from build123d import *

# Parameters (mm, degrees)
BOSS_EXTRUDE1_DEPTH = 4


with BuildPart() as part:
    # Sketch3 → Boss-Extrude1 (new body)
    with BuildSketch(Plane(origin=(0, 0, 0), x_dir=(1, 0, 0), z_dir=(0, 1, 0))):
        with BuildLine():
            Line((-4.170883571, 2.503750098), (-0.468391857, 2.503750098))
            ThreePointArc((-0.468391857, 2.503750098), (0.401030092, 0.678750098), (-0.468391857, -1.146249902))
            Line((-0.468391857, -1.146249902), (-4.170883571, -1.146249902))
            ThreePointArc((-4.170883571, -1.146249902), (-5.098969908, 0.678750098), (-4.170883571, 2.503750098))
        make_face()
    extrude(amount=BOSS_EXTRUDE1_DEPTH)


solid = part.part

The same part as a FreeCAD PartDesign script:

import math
import FreeCAD as App
import Part
import Sketcher

doc = App.newDocument("Part")
body = doc.addObject("PartDesign::Body", "Body")

# Sketch on XZ plane
sketch1 = body.newObject("Sketcher::SketchObject", "Sketch")
sketch1.AttachmentSupport = (doc.getObject("XZ_Plane"), [""])
sketch1.MapMode = "FlatFace"
sketch1.addGeometry(Part.LineSegment(App.Vector(-0.5, -2.5, 0), App.Vector(-4.2, -2.5, 0)), False)
sketch1.addGeometry(Part.ArcOfCircle(Part.Circle(App.Vector(-2.8, -0.7, 0), App.Vector(0, 0, 1), 2.3), math.radians(126), math.radians(234)), False)
sketch1.addGeometry(Part.LineSegment(App.Vector(-4.2, 1.1, 0), App.Vector(-0.5, 1.1, 0)), False)
sketch1.addGeometry(Part.ArcOfCircle(Part.Circle(App.Vector(-1.9, -0.7, 0), App.Vector(0, 0, 1), 2.4), math.radians(-51), math.radians(51)), False)
sketch1.addConstraint(Sketcher.Constraint("Coincident", 0, 2, 1, 2))
sketch1.addConstraint(Sketcher.Constraint("Coincident", 1, 1, 2, 1))
sketch1.addConstraint(Sketcher.Constraint("Coincident", 2, 2, 3, 2))
sketch1.addConstraint(Sketcher.Constraint("Coincident", 3, 1, 0, 1))
sketch1.addConstraint(Sketcher.Constraint("Horizontal", 0))
sketch1.addConstraint(Sketcher.Constraint("Horizontal", 2))
sketch1.addConstraint(Sketcher.Constraint("Horizontal", 1, 3, 3, 3))
sketch1.addConstraint(Sketcher.Constraint("Vertical", 0, 2, 1, 1))
sketch1.addConstraint(Sketcher.Constraint("DistanceY", 0, 2, 1, 1, 3.65))
sketch1.addConstraint(Sketcher.Constraint("Radius", 1, 2.258394))
sketch1.addConstraint(Sketcher.Constraint("Radius", 3, 2.350136))
sketch1.addConstraint(Sketcher.Constraint("DistanceX", 0, 2, 0, 1, 3.702492))
sketch1.addConstraint(Sketcher.Constraint("DistanceY", 1, 3, -1, 1, 0.67875))
sketch1.addConstraint(Sketcher.Constraint("DistanceX", 2, 2, -1, 1, 0.468392))
pad1 = body.newObject("PartDesign::Pad", "Pad")
pad1.Profile = sketch1
pad1.Length = 4
pad1.Reversed = True

doc.recompute()
